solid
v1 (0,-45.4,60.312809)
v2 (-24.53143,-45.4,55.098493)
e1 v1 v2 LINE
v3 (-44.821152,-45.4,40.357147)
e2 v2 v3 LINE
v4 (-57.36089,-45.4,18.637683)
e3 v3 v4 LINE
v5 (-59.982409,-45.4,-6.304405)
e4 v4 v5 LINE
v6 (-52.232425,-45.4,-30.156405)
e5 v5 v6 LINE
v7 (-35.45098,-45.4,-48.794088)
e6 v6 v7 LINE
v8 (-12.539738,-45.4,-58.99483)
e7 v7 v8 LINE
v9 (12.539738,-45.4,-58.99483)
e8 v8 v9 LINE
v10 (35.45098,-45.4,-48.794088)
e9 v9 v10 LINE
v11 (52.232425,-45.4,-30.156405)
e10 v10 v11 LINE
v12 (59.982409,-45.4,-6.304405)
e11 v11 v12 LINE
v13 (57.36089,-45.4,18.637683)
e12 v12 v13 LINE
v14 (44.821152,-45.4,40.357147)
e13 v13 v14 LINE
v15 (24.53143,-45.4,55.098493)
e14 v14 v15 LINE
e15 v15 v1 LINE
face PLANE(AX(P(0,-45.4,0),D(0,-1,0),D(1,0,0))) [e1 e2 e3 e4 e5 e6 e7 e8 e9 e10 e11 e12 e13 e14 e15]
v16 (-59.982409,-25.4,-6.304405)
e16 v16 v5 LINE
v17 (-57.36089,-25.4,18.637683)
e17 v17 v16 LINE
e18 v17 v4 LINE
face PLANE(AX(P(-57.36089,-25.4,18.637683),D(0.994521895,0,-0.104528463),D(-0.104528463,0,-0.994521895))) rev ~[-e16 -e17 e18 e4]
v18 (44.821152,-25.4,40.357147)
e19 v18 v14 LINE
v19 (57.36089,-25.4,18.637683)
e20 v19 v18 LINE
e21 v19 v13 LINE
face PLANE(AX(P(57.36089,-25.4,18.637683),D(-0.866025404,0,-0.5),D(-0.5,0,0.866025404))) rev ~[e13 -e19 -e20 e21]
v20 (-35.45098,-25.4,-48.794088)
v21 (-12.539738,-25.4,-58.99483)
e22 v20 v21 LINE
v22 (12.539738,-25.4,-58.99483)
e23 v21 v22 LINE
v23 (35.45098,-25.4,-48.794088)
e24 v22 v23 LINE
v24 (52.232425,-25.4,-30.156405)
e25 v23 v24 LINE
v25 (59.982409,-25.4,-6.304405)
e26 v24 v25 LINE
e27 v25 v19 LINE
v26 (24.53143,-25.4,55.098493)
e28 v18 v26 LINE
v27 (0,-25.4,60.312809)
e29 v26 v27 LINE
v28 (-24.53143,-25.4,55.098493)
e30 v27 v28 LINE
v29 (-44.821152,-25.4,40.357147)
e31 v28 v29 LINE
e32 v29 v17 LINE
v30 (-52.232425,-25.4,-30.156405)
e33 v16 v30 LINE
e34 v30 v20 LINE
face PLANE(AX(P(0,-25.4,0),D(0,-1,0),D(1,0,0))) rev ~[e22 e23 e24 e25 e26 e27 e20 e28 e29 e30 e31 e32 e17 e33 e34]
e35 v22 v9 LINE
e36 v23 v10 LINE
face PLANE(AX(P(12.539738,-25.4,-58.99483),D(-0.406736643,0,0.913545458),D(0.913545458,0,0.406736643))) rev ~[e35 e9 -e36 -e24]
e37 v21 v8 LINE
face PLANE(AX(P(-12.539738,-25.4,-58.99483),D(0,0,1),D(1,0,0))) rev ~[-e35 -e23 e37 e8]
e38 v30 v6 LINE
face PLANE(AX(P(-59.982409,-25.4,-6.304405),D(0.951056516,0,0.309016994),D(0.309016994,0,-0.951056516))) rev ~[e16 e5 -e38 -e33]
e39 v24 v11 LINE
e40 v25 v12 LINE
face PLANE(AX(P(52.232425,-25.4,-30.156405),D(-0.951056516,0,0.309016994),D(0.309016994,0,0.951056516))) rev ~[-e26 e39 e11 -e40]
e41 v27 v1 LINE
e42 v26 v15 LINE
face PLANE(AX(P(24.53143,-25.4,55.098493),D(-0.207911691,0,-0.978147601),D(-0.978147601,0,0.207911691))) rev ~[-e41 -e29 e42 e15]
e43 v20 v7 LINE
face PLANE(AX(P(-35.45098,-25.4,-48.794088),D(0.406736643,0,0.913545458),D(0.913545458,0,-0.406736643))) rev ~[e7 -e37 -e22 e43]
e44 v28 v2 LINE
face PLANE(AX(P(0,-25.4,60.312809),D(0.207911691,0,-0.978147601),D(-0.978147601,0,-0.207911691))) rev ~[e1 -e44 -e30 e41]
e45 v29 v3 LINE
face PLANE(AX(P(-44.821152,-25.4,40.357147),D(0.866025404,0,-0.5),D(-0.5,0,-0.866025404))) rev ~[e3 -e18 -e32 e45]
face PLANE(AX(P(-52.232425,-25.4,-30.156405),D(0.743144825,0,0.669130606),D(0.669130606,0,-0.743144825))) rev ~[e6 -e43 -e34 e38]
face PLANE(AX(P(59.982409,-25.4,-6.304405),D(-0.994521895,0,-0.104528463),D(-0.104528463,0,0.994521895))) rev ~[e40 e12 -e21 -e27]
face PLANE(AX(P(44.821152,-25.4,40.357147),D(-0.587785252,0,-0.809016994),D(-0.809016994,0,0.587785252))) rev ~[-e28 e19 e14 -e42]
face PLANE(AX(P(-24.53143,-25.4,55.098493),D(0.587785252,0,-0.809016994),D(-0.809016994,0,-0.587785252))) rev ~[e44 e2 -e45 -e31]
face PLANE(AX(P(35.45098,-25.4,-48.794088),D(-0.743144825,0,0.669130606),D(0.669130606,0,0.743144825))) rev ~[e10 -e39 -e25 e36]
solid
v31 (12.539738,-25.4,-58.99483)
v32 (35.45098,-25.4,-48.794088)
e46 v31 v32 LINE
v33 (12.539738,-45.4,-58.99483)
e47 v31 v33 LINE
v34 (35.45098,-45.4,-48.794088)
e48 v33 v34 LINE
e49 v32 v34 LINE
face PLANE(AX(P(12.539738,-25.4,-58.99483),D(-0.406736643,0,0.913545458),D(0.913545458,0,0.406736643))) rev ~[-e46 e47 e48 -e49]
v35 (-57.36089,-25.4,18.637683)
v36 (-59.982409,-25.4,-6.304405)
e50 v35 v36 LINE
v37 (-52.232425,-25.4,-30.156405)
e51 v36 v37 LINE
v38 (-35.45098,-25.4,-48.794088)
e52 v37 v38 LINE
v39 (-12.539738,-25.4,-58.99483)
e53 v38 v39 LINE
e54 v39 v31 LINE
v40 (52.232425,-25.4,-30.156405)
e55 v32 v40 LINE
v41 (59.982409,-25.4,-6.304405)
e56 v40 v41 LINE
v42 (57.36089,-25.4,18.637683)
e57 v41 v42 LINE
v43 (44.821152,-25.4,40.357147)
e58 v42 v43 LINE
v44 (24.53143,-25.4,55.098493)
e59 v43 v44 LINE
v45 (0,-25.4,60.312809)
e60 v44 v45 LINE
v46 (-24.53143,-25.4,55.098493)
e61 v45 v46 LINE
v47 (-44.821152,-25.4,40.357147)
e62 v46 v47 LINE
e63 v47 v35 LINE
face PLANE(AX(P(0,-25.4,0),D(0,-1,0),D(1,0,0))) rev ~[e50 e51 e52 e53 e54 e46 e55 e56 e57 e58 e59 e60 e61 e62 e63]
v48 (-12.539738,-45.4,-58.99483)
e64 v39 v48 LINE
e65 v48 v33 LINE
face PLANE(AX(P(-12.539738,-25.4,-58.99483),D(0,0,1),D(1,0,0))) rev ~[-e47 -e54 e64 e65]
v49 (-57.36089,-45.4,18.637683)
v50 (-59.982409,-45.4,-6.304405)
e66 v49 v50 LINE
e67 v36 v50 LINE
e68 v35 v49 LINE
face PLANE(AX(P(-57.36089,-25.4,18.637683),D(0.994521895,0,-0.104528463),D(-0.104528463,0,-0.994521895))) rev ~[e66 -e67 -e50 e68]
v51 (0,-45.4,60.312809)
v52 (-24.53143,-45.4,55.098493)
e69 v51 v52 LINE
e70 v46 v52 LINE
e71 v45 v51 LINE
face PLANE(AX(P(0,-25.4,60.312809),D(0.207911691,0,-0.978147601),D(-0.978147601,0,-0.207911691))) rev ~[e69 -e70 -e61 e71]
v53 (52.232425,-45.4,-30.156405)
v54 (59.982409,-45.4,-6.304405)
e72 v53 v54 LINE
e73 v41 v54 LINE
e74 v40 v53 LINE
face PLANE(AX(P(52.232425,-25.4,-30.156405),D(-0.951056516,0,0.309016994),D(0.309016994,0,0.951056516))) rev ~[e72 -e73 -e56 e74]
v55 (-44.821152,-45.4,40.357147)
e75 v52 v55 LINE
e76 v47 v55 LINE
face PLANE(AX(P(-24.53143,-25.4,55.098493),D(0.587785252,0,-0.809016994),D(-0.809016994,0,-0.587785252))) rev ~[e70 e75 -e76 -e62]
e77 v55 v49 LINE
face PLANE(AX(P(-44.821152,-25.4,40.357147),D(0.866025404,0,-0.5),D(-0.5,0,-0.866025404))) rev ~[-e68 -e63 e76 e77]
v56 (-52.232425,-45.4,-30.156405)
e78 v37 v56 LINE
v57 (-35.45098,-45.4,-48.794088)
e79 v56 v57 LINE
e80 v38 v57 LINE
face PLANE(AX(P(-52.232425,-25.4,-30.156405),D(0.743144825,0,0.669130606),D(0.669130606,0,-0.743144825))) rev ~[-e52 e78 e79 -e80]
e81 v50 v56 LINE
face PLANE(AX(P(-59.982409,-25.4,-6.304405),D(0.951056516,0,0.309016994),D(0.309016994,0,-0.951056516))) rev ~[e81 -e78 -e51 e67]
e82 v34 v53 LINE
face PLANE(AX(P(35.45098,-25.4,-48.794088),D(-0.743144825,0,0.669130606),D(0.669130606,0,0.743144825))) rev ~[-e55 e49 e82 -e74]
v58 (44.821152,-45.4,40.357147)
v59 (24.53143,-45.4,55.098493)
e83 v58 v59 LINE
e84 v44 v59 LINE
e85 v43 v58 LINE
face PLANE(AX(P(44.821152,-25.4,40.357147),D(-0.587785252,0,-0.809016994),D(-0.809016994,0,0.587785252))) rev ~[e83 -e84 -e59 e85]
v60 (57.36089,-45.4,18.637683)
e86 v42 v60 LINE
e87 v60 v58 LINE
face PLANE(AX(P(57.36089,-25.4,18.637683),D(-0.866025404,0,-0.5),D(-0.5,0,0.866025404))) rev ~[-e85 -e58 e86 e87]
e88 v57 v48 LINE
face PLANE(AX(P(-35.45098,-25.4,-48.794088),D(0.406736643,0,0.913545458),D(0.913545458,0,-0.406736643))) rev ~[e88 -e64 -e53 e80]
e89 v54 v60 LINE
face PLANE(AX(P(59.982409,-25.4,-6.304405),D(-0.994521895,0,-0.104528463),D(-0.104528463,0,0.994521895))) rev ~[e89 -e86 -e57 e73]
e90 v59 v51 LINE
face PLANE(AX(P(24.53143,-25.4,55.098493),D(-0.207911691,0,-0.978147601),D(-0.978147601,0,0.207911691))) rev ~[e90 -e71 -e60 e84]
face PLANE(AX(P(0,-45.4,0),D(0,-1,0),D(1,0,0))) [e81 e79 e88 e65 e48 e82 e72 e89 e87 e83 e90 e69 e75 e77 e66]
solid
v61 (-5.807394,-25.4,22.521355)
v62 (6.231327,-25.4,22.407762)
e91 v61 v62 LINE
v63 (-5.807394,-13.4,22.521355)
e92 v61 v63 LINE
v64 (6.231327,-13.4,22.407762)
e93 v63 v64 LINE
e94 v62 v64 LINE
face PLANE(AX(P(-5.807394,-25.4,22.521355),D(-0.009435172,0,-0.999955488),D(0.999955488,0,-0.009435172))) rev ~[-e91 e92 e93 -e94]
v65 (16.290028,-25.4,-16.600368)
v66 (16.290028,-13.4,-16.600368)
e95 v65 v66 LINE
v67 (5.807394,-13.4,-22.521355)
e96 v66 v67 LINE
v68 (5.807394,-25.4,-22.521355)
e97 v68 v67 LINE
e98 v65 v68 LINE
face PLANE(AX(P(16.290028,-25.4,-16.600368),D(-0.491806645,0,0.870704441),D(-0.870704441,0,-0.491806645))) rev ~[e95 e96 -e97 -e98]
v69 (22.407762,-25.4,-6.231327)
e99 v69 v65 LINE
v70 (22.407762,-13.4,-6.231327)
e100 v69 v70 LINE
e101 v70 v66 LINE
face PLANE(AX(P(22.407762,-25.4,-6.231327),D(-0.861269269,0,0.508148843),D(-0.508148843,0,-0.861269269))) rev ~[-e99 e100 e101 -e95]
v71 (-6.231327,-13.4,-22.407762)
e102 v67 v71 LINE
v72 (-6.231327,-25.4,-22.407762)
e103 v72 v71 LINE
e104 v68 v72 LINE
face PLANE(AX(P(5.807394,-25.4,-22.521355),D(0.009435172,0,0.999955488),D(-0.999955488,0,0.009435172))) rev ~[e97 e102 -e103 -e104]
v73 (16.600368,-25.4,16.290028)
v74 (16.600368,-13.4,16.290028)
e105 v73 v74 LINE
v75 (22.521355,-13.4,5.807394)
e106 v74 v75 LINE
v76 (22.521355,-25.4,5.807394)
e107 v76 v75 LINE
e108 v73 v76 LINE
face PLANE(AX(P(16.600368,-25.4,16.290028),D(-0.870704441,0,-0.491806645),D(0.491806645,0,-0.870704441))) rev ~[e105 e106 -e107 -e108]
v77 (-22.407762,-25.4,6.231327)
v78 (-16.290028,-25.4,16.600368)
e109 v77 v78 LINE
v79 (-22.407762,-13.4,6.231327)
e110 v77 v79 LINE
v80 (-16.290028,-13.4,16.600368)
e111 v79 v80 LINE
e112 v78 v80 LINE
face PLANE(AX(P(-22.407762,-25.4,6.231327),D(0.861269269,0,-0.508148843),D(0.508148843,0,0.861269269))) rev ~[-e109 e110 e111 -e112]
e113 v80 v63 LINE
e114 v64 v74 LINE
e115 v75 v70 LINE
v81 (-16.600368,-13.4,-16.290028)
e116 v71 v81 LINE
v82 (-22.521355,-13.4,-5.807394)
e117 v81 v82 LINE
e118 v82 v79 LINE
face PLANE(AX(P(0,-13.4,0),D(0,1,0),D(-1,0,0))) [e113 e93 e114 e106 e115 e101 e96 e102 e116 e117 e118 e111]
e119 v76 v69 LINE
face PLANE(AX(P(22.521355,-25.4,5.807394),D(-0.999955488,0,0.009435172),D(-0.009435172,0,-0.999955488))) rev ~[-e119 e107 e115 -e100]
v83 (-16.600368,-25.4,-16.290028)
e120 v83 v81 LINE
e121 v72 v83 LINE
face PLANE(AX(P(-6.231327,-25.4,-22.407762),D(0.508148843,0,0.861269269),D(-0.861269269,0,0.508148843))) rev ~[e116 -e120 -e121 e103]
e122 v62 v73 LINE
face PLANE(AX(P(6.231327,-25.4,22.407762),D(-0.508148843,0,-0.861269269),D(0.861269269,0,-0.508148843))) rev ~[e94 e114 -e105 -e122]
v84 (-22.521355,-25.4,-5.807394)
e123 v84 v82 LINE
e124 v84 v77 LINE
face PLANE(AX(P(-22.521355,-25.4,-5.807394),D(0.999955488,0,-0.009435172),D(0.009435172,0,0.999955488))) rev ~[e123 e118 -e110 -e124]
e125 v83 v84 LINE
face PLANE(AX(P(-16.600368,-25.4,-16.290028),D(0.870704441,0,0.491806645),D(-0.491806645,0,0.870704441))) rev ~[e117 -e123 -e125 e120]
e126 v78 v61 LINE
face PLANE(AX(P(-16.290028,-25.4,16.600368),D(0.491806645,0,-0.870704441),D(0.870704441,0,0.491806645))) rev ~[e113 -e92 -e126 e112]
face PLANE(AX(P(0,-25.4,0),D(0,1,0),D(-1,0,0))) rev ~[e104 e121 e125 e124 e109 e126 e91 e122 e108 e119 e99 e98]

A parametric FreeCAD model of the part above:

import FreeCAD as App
import Part
import Sketcher
from FreeCAD import Vector
Q = App.Units.Quantity

doc = App.newDocument("Part")
body = doc.addObject("PartDesign::Body", "Body")

# Sketch on XZ plane
sketch1 = body.newObject("Sketcher::SketchObject", "Sketch")
sketch1.AttachmentSupport = (doc.getObject("XZ_Plane"), [""])
sketch1.MapMode = "FlatFace"
sketch1.AttachmentOffset = App.Placement(Vector(0, 0, 25.4), App.Rotation())
sketch1.addGeometry([
    Part.LineSegment(Vector(-12.539738, -58.99483, 0), Vector(12.539738, -58.99483, 0)),  # 0
    Part.LineSegment(Vector(12.539738, -58.99483, 0), Vector(35.45098, -48.794088, 0)),  # 1
    Part.LineSegment(Vector(35.45098, -48.794088, 0), Vector(52.232425, -30.156405, 0)),  # 2
    Part.LineSegment(Vector(52.232425, -30.156405, 0), Vector(59.982409, -6.304405, 0)),  # 3
    Part.LineSegment(Vector(59.982409, -6.304405, 0), Vector(57.36089, 18.637683, 0)),  # 4
    Part.LineSegment(Vector(57.36089, 18.637683, 0), Vector(44.821152, 40.357147, 0)),  # 5
    Part.LineSegment(Vector(44.821152, 40.357147, 0), Vector(24.53143, 55.098493, 0)),  # 6
    Part.LineSegment(Vector(24.53143, 55.098493, 0), Vector(0, 60.312809, 0)),  # 7
    Part.LineSegment(Vector(0, 60.312809, 0), Vector(-24.53143, 55.098493, 0)),  # 8
    Part.LineSegment(Vector(-24.53143, 55.098493, 0), Vector(-44.821152, 40.357147, 0)),  # 9
    Part.LineSegment(Vector(-44.821152, 40.357147, 0), Vector(-57.36089, 18.637683, 0)),  # 10
    Part.LineSegment(Vector(-57.36089, 18.637683, 0), Vector(-59.982409, -6.304405, 0)),  # 11
    Part.LineSegment(Vector(-59.982409, -6.304405, 0), Vector(-52.232425, -30.156405, 0)),  # 12
    Part.LineSegment(Vector(-52.232425, -30.156405, 0), Vector(-35.45098, -48.794088, 0)),  # 13
    Part.LineSegment(Vector(-35.45098, -48.794088, 0), Vector(-12.539738, -58.99483, 0)),  # 14
], False)
sketch1.addConstraint([
    Sketcher.Constraint("Coincident", 0, 2, 1, 1),
    Sketcher.Constraint("Coincident", 1, 2, 2, 1),
    Sketcher.Constraint("Coincident", 2, 2, 3, 1),
    Sketcher.Constraint("Coincident", 3, 2, 4, 1),
    Sketcher.Constraint("Coincident", 4, 2, 5, 1),
    Sketcher.Constraint("Coincident", 5, 2, 6, 1),
    Sketcher.Constraint("Coincident", 6, 2, 7, 1),
    Sketcher.Constraint("Coincident", 7, 2, 8, 1),
    Sketcher.Constraint("Coincident", 8, 2, 9, 1),
    Sketcher.Constraint("Coincident", 9, 2, 10, 1),
    Sketcher.Constraint("Coincident", 10, 2, 11, 1),
    Sketcher.Constraint("Coincident", 11, 2, 12, 1),
    Sketcher.Constraint("Coincident", 12, 2, 13, 1),
    Sketcher.Constraint("Coincident", 13, 2, 14, 1),
    Sketcher.Constraint("Coincident", 14, 2, 0, 1),
    Sketcher.Constraint("Horizontal", 0),
    Sketcher.Constraint("Symmetric", 6, 2, 8, 2, -2),
    Sketcher.Constraint("Symmetric", 5, 2, 9, 2, -2),
    Sketcher.Constraint("Symmetric", 4, 2, 10, 2, -2),
    Sketcher.Constraint("Symmetric", 3, 2, 11, 2, -2),
    Sketcher.Constraint("Symmetric", 2, 2, 12, 2, -2),
    Sketcher.Constraint("Symmetric", 1, 2, 13, 2, -2),
    Sketcher.Constraint("PointOnObject", 7, 2, -2),
    Sketcher.Constraint("Equal", 1, 2),
    Sketcher.Constraint("Equal", 2, 3),
    Sketcher.Constraint("Equal", 3, 4),
    Sketcher.Constraint("Equal", 4, 5),
    Sketcher.Constraint("Equal", 5, 6),
    Sketcher.Constraint("Equal", 6, 7),
    Sketcher.Constraint("Equal", 13, 14),
    Sketcher.Constraint("Angle", 1, Q("24 deg")),
    Sketcher.Constraint("Angle", 2, Q("48 deg")),
    Sketcher.Constraint("Angle", 3, Q("72 deg")),
    Sketcher.Constraint("Angle", 4, Q("96 deg")),
    Sketcher.Constraint("Angle", 5, Q("120 deg")),
    Sketcher.Constraint("Angle", 6, Q("144 deg")),
    Sketcher.Constraint("Angle", 7, Q("168 deg")),
    Sketcher.Constraint("DistanceY", 2, 2, 3, 2, 23.851999),
    Sketcher.Constraint("DistanceY", 0, 2, -1, 1, 58.99483),
])
pad1 = body.newObject("PartDesign::Pad", "Pad")
pad1.Profile = sketch1
pad1.Length = 20
body2 = doc.addObject("PartDesign::Body", "Body001")

# Sketch on XZ plane
sketch2 = body2.newObject("Sketcher::SketchObject", "Sketch001")
sketch2.AttachmentSupport = (doc.getObject("XZ_Plane001"), [""])
sketch2.MapMode = "FlatFace"
sketch2.AttachmentOffset = App.Placement(Vector(0, 0, 25.4), App.Rotation())
sketch2.addGeometry([
    Part.LineSegment(Vector(-35.45098, -48.794088, 0), Vector(-12.539738, -58.99483, 0)),  # 0
    Part.LineSegment(Vector(-12.539738, -58.99483, 0), Vector(12.539738, -58.99483, 0)),  # 1
    Part.LineSegment(Vector(12.539738, -58.99483, 0), Vector(35.45098, -48.794088, 0)),  # 2
    Part.LineSegment(Vector(35.45098, -48.794088, 0), Vector(52.232425, -30.156405, 0)),  # 3
    Part.LineSegment(Vector(52.232425, -30.156405, 0), Vector(59.982409, -6.304405, 0)),  # 4
    Part.LineSegment(Vector(59.982409, -6.304405, 0), Vector(57.36089, 18.637683, 0)),  # 5
    Part.LineSegment(Vector(57.36089, 18.637683, 0), Vector(44.821152, 40.357147, 0)),  # 6
    Part.LineSegment(Vector(44.821152, 40.357147, 0), Vector(24.53143, 55.098493, 0)),  # 7
    Part.LineSegment(Vector(24.53143, 55.098493, 0), Vector(0, 60.312809, 0)),  # 8
    Part.LineSegment(Vector(0, 60.312809, 0), Vector(-24.53143, 55.098493, 0)),  # 9
    Part.LineSegment(Vector(-24.53143, 55.098493, 0), Vector(-44.821152, 40.357147, 0)),  # 10
    Part.LineSegment(Vector(-44.821152, 40.357147, 0), Vector(-57.36089, 18.637683, 0)),  # 11
    Part.LineSegment(Vector(-57.36089, 18.637683, 0), Vector(-59.982409, -6.304405, 0)),  # 12
    Part.LineSegment(Vector(-59.982409, -6.304405, 0), Vector(-52.232425, -30.156405, 0)),  # 13
    Part.LineSegment(Vector(-52.232425, -30.156405, 0), Vector(-35.45098, -48.794088, 0)),  # 14
], False)
sketch2.addConstraint([
    Sketcher.Constraint("Coincident", 0, 2, 1, 1),
    Sketcher.Constraint("Coincident", 1, 2, 2, 1),
    Sketcher.Constraint("Coincident", 2, 2, 3, 1),
    Sketcher.Constraint("Coincident", 3, 2, 4, 1),
    Sketcher.Constraint("Coincident", 4, 2, 5, 1),
    Sketcher.Constraint("Coincident", 5, 2, 6, 1),
    Sketcher.Constraint("Coincident", 6, 2, 7, 1),
    Sketcher.Constraint("Coincident", 7, 2, 8, 1),
    Sketcher.Constraint("Coincident", 8, 2, 9, 1),
    Sketcher.Constraint("Coincident", 9, 2, 10, 1),
    Sketcher.Constraint("Coincident", 10, 2, 11, 1),
    Sketcher.Constraint("Coincident", 11, 2, 12, 1),
    Sketcher.Constraint("Coincident", 12, 2, 13, 1),
    Sketcher.Constraint("Coincident", 13, 2, 14, 1),
    Sketcher.Constraint("Coincident", 14, 2, 0, 1),
    Sketcher.Constraint("Horizontal", 1),
    Sketcher.Constraint("Symmetric", 7, 2, 9, 2, -2),
    Sketcher.Constraint("Symmetric", 6, 2, 10, 2, -2),
    Sketcher.Constraint("Symmetric", 5, 2, 11, 2, -2),
    Sketcher.Constraint("Symmetric", 4, 2, 12, 2, -2),
    Sketcher.Constraint("Symmetric", 3, 2, 13, 2, -2),
    Sketcher.Constraint("Symmetric", 2, 2, 14, 2, -2),
    Sketcher.Constraint("PointOnObject", 8, 2, -2),
    Sketcher.Constraint("Equal", 0, 2),
    Sketcher.Constraint("Equal", 2, 3),
    Sketcher.Constraint("Equal", 3, 4),
    Sketcher.Constraint("Equal", 4, 5),
    Sketcher.Constraint("Equal", 5, 6),
    Sketcher.Constraint("Equal", 6, 7),
    Sketcher.Constraint("Equal", 7, 8),
    Sketcher.Constraint("Angle", 0, Q("-24 deg")),
    Sketcher.Constraint("Angle", 3, Q("48 deg")),
    Sketcher.Constraint("Angle", 4, Q("72 deg")),
    Sketcher.Constraint("Angle", 5, Q("96 deg")),
    Sketcher.Constraint("Angle", 6, Q("120 deg")),
    Sketcher.Constraint("Angle", 7, Q("144 deg")),
    Sketcher.Constraint("Angle", 8, Q("168 deg")),
    Sketcher.Constraint("DistanceY", 3, 2, 4, 2, 23.851999),
    Sketcher.Constraint("DistanceY", 0, 2, -1, 1, 58.99483),
])
pad2 = body2.newObject("PartDesign::Pad", "Pad001")
pad2.Profile = sketch2
pad2.Length = 20
body3 = doc.addObject("PartDesign::Body", "Body002")

# Sketch on XZ plane
sketch3 = body3.newObject("Sketcher::SketchObject", "Sketch002")
sketch3.AttachmentSupport = (doc.getObject("XZ_Plane002"), [""])
sketch3.MapMode = "FlatFace"
sketch3.AttachmentOffset = App.Placement(Vector(0, 0, 25.4), App.Rotation())
sketch3.addGeometry([
    Part.LineSegment(Vector(6.231327, 22.407762, 0), Vector(16.600368, 16.290028, 0)),  # 0
    Part.LineSegment(Vector(16.600368, 16.290028, 0), Vector(22.521355, 5.807394, 0)),  # 1
    Part.LineSegment(Vector(22.521355, 5.807394, 0), Vector(22.407762, -6.231327, 0)),  # 2
    Part.LineSegment(Vector(22.407762, -6.231327, 0), Vector(16.290028, -16.600368, 0)),  # 3
    Part.LineSegment(Vector(16.290028, -16.600368, 0), Vector(5.807394, -22.521355, 0)),  # 4
    Part.LineSegment(Vector(5.807394, -22.521355, 0), Vector(-6.231327, -22.407762, 0)),  # 5
    Part.LineSegment(Vector(-6.231327, -22.407762, 0), Vector(-16.600368, -16.290028, 0)),  # 6
    Part.LineSegment(Vector(-16.600368, -16.290028, 0), Vector(-22.521355, -5.807394, 0)),  # 7
    Part.LineSegment(Vector(-22.521355, -5.807394, 0), Vector(-22.407762, 6.231327, 0)),  # 8
    Part.LineSegment(Vector(-22.407762, 6.231327, 0), Vector(-16.290028, 16.600368, 0)),  # 9
    Part.LineSegment(Vector(-16.290028, 16.600368, 0), Vector(-5.807394, 22.521355, 0)),  # 10
    Part.LineSegment(Vector(-5.807394, 22.521355, 0), Vector(6.231327, 22.407762, 0)),  # 11
], False)
sketch3.addConstraint([
    Sketcher.Constraint("Coincident", 0, 2, 1, 1),
    Sketcher.Constraint("Coincident", 1, 2, 2, 1),
    Sketcher.Constraint("Coincident", 2, 2, 3, 1),
    Sketcher.Constraint("Coincident", 3, 2, 4, 1),
    Sketcher.Constraint("Coincident", 4, 2, 5, 1),
    Sketcher.Constraint("Coincident", 5, 2, 6, 1),
    Sketcher.Constraint("Coincident", 6, 2, 7, 1),
    Sketcher.Constraint("Coincident", 7, 2, 8, 1),
    Sketcher.Constraint("Coincident", 8, 2, 9, 1),
    Sketcher.Constraint("Coincident", 9, 2, 10, 1),
    Sketcher.Constraint("Coincident", 10, 2, 11, 1),
    Sketcher.Constraint("Coincident", 11, 2, 0, 1),
    Sketcher.Constraint("Symmetric", 0, 2, 6, 2, -1, 1),
    Sketcher.Constraint("Symmetric", 1, 2, 7, 2, -1, 1),
    Sketcher.Constraint("Symmetric", 2, 2, 8, 2, -1, 1),
    Sketcher.Constraint("Symmetric", 3, 2, 9, 2, -1, 1),
    Sketcher.Constraint("Symmetric", 4, 2, 10, 2, -1, 1),
    Sketcher.Constraint("Symmetric", 5, 2, 11, 2, -1, 1),
    Sketcher.Constraint("Perpendicular", 0, 3),
    Sketcher.Constraint("Perpendicular", 1, 4),
    Sketcher.Constraint("Perpendicular", 2, 5),
    Sketcher.Constraint("Equal", 0, 1),
    Sketcher.Constraint("Equal", 1, 2),
    Sketcher.Constraint("Equal", 2, 3),
    Sketcher.Constraint("Equal", 3, 4),
    Sketcher.Constraint("Equal", 4, 5),
    Sketcher.Constraint("DistanceY", 6, 2, 2, 2, 10.058701),
    Sketcher.Constraint("DistanceX", -1, 1, 0, 2, 16.600368),
    Sketcher.Constraint("DistanceY", -1, 1, 0, 2, 16.290028),
    Sketcher.Constraint("DistanceY", 2, 2, 1, 2, 12.038721),
])
pad3 = body3.newObject("PartDesign::Pad", "Pad002")
pad3.Profile = sketch3
pad3.Length = 12
pad3.Reversed = True

doc.recompute()
